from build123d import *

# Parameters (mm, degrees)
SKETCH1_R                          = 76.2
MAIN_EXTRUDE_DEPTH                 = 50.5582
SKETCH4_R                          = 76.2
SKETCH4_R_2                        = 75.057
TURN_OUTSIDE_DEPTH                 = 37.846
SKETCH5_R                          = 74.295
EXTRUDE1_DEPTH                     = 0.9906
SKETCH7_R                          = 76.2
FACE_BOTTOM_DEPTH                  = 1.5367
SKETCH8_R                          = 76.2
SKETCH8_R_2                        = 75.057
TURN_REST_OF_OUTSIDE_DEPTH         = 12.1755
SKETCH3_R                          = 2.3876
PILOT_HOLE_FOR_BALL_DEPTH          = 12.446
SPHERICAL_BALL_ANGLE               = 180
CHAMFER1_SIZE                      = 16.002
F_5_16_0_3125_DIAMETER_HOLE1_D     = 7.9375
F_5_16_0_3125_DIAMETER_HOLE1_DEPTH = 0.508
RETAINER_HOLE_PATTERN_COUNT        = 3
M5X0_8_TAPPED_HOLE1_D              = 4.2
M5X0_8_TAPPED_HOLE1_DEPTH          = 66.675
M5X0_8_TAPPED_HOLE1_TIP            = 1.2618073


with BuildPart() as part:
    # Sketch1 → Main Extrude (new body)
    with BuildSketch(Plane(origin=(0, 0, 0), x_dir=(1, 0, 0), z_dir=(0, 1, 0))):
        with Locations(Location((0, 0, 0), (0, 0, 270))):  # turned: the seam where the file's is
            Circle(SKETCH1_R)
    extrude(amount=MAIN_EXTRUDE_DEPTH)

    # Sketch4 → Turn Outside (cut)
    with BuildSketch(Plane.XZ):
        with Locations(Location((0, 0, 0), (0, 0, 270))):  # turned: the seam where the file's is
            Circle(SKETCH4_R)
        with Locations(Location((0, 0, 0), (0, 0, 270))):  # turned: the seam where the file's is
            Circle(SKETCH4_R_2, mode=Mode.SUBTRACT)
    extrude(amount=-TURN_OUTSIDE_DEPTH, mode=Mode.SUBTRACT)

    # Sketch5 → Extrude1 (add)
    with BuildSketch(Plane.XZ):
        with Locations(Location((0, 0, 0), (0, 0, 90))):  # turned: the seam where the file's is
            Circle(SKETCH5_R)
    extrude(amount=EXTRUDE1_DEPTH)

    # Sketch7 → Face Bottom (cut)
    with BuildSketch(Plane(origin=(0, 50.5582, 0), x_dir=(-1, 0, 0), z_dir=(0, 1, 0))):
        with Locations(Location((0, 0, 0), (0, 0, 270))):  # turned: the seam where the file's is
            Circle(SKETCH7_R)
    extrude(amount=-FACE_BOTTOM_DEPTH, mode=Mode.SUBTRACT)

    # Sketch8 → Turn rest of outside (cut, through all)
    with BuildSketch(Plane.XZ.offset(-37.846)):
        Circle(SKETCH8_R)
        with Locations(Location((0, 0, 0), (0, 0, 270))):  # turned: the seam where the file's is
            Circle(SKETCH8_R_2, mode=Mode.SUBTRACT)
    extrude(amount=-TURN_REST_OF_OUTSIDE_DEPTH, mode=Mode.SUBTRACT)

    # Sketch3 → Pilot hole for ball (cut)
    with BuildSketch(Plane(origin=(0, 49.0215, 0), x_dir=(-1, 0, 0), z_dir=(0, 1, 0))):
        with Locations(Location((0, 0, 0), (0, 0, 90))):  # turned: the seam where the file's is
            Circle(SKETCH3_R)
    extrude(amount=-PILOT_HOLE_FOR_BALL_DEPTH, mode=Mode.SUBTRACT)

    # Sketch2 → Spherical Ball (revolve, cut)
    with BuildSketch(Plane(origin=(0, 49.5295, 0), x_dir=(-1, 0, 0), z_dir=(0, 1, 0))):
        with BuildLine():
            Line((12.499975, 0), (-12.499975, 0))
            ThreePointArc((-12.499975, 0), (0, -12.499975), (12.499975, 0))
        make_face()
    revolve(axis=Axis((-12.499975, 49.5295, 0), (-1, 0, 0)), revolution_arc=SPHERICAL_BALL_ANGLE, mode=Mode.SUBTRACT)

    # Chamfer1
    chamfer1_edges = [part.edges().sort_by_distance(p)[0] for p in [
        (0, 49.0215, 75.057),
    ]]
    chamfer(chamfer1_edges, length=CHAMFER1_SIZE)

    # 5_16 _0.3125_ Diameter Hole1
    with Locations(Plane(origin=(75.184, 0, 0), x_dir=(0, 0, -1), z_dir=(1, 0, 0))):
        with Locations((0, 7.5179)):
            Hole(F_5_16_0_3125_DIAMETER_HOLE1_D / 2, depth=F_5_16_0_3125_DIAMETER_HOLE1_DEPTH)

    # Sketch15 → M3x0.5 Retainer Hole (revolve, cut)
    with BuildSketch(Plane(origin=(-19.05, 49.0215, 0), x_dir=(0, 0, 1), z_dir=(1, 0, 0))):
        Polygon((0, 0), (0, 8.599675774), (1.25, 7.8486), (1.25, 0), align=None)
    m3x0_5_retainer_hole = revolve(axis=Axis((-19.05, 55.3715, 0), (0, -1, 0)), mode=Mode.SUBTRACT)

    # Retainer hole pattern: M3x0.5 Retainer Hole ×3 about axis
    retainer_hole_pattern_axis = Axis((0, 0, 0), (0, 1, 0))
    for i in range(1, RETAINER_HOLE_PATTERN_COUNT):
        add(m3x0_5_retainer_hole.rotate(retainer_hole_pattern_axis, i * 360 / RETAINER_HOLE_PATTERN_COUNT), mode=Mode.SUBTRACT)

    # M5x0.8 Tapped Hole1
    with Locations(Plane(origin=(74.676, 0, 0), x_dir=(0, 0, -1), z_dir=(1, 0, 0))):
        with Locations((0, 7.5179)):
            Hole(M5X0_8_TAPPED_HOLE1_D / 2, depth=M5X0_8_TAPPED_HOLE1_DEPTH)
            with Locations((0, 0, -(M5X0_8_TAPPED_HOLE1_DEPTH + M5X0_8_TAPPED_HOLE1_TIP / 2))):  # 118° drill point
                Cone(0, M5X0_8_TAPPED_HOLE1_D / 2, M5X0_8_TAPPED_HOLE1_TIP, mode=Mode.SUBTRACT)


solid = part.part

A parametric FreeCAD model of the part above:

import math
import FreeCAD as App
import Part
import Sketcher
from FreeCAD import Vector
Q = App.Units.Quantity


def edges_at(feature, points):
    """Names of the edges that pass closest to the given points."""
    edges = feature.Shape.Edges
    near = lambda p: min(range(len(edges)), key=lambda i: edges[i].distToShape(Part.Vertex(*p))[0])
    return sorted({f"Edge{near(p) + 1}" for p in points})


def add_polygon(sketch, points):
    """Adds a closed chain of lines whose ends are joined by coincident constraints."""
    first, n = sketch.GeometryCount, len(points)
    for a, b in zip(points, points[1:] + points[:1]):
        sketch.addGeometry(Part.LineSegment(App.Vector(*a, 0), App.Vector(*b, 0)), False)
    for i in range(n):
        sketch.addConstraint(Sketcher.Constraint("Coincident", first + i, 2, first + (i + 1) % n, 1))

doc = App.newDocument("Part")
params = doc.addObject("Spreadsheet::Sheet", "Params")
for row, (alias, value) in enumerate([
    ("sketch1_diameter", "6 in"),
    ("pad1_length", "50.5582 mm"),
    ("sketch2_diameter", "6 in"),
    ("sketch2_diameter2", "5.91 in"),
    ("pocket1_length", "1.49 in"),
    ("sketch3_diameter", "5.85 in"),
    ("pad2_length", "0.039 in"),
    ("sketch4_diameter", "6 in"),
    ("pocket2_length", "0.0605 in"),
    ("sketch5_diameter", "6 in"),
    ("sketch5_diameter2", "5.91 in"),
    ("sketch6_diameter", "0.188 in"),
    ("pocket4_length", "0.49 in"),
    ("groove_angle", "180 deg"),
    ("chamfer_size", "0.63 in"),
    ("sketch8_diameter", "0.3125 in"),
    ("hole_diameter", "0.3125 in"),
    ("hole_depth", "0.02 in"),
    ("sketch9_width", "0.309 in"),
    ("groove2_angle", "360 deg"),
    ("hole2_diameter", "4.2 mm"),
    ("hole2_depth", "2.625 in"),
], start=1):
    params.set(f"A{row}", alias)
    params.set(f"B{row}", "=" + value)
    params.setAlias(f"B{row}", alias)

body = doc.addObject("PartDesign::Body", "Body")

# Sketch on XZ plane
sketch1 = body.newObject("Sketcher::SketchObject", "Sketch")
sketch1.AttachmentSupport = (doc.getObject("XZ_Plane"), [""])
sketch1.MapMode = "FlatFace"
sketch1.addGeometry(Part.Circle(Vector(0, 0, 0), Vector(0, 0, 1), 76), False)
sketch1.addConstraint(Sketcher.Constraint("Coincident", 0, 3, -1, 1))
sketch1.addConstraint(Sketcher.Constraint("Diameter", 0, Q("6 in")))
sketch1.setExpression("Constraints[1]", "Params.sketch1_diameter")
pad1 = body.newObject("PartDesign::Pad", "Pad")
pad1.Profile = sketch1
pad1.setExpression("Length", "Params.pad1_length")
pad1.Reversed = True

# Sketch on XZ plane
sketch2 = body.newObject("Sketcher::SketchObject", "Sketch001")
sketch2.AttachmentSupport = (doc.getObject("XZ_Plane"), [""])
sketch2.MapMode = "FlatFace"
sketch2.addGeometry(Part.Circle(Vector(0, 0, 0), Vector(0, 0, 1), 76), False)
sketch2.addGeometry(Part.Circle(Vector(0, 0, 0), Vector(0, 0, 1), 75), False)
sketch2.addConstraint(Sketcher.Constraint("Coincident", 0, 3, -1, 1))
sketch2.addConstraint(Sketcher.Constraint("Coincident", 1, 3, -1, 1))
sketch2.addConstraint(Sketcher.Constraint("Diameter", 0, Q("6 in")))
sketch2.addConstraint(Sketcher.Constraint("Diameter", 1, Q("5.91 in")))
sketch2.setExpression("Constraints[2]", "Params.sketch2_diameter")
sketch2.setExpression("Constraints[3]", "Params.sketch2_diameter2")
pocket1 = body.newObject("PartDesign::Pocket", "Pocket")
pocket1.Profile = sketch2
pocket1.setExpression("Length", "Params.pocket1_length")

# Sketch on XZ plane
sketch3 = body.newObject("Sketcher::SketchObject", "Sketch002")
sketch3.AttachmentSupport = (doc.getObject("XZ_Plane"), [""])
sketch3.MapMode = "FlatFace"
sketch3.addGeometry(Part.Circle(Vector(0, 0, 0), Vector(0, 0, 1), 74), False)
sketch3.addConstraint(Sketcher.Constraint("Coincident", 0, 3, -1, 1))
sketch3.addConstraint(Sketcher.Constraint("Diameter", 0, Q("5.85 in")))
sketch3.setExpression("Constraints[1]", "Params.sketch3_diameter")
pad2 = body.newObject("PartDesign::Pad", "Pad001")
pad2.Profile = sketch3
pad2.setExpression("Length", "Params.pad2_length")

# Sketch on XZ plane
sketch4 = body.newObject("Sketcher::SketchObject", "Sketch003")
sketch4.AttachmentSupport = (doc.getObject("XZ_Plane"), [""])
sketch4.MapMode = "FlatFace"
sketch4.AttachmentOffset = App.Placement(Vector(0, 0, -50.5582), App.Rotation())
sketch4.addGeometry(Part.Circle(Vector(0, 0, 0), Vector(0, 0, 1), 76), False)
sketch4.addConstraint(Sketcher.Constraint("Coincident", 0, 3, -1, 1))
sketch4.addConstraint(Sketcher.Constraint("Diameter", 0, Q("6 in")))
sketch4.setExpression("Constraints[1]", "Params.sketch4_diameter")
pocket2 = body.newObject("PartDesign::Pocket", "Pocket001")
pocket2.Profile = sketch4
pocket2.setExpression("Length", "Params.pocket2_length")
pocket2.Reversed = True

# Sketch on XZ plane
sketch5 = body.newObject("Sketcher::SketchObject", "Sketch004")
sketch5.AttachmentSupport = (doc.getObject("XZ_Plane"), [""])
sketch5.MapMode = "FlatFace"
sketch5.AttachmentOffset = App.Placement(Vector(0, 0, -1.49 * 25.4), App.Rotation())
sketch5.addGeometry(Part.Circle(Vector(0, 0, 0), Vector(0, 0, 1), 76), False)
sketch5.addGeometry(Part.Circle(Vector(0, 0, 0), Vector(0, 0, 1), 75), False)
sketch5.addConstraint(Sketcher.Constraint("Coincident", 0, 3, -1, 1))
sketch5.addConstraint(Sketcher.Constraint("Coincident", 1, 3, -1, 1))
sketch5.addConstraint(Sketcher.Constraint("Diameter", 0, Q("6 in")))
sketch5.addConstraint(Sketcher.Constraint("Diameter", 1, Q("5.91 in")))
sketch5.setExpression("Constraints[2]", "Params.sketch5_diameter")
sketch5.setExpression("Constraints[3]", "Params.sketch5_diameter2")
pocket3 = body.newObject("PartDesign::Pocket", "Pocket002")
pocket3.Profile = sketch5
pocket3.Type = "ThroughAll"

# Sketch on XZ plane
sketch6 = body.newObject("Sketcher::SketchObject", "Sketch005")
sketch6.AttachmentSupport = (doc.getObject("XZ_Plane"), [""])
sketch6.MapMode = "FlatFace"
sketch6.AttachmentOffset = App.Placement(Vector(0, 0, -49.0215), App.Rotation())
sketch6.addGeometry(Part.Circle(Vector(0, 0, 0), Vector(0, 0, 1), 2.4), False)
sketch6.addConstraint(Sketcher.Constraint("Coincident", 0, 3, -1, 1))
sketch6.addConstraint(Sketcher.Constraint("Diameter", 0, Q("0.188 in")))
sketch6.setExpression("Constraints[1]", "Params.sketch6_diameter")
pocket4 = body.newObject("PartDesign::Pocket", "Pocket003")
pocket4.Profile = sketch6
pocket4.setExpression("Length", "Params.pocket4_length")
pocket4.Reversed = True

# Sketch on XZ plane
sketch7 = body.newObject("Sketcher::SketchObject", "Sketch006")
sketch7.AttachmentSupport = (doc.getObject("XZ_Plane"), [""])
sketch7.MapMode = "FlatFace"
sketch7.AttachmentOffset = App.Placement(Vector(0, 0, -49.5295), App.Rotation())
sketch7.addGeometry(Part.LineSegment(Vector(-12, 0, 0), Vector(12, 0, 0)), False)
sketch7.addGeometry(Part.ArcOfCircle(Part.Circle(Vector(0, 0, 0), Vector(0, 0, 1), 12), math.radians(180), math.radians(360)), False)
sketch7.addConstraint(Sketcher.Constraint("Coincident", 0, 1, 1, 1))
sketch7.addConstraint(Sketcher.Constraint("Coincident", 1, 2, 0, 2))
sketch7.addConstraint(Sketcher.Constraint("Horizontal", 0))
sketch7.addConstraint(Sketcher.Constraint("Coincident", 1, 3, -1, 1))
sketch7.addConstraint(Sketcher.Constraint("PointOnObject", 0, 1, -1))
sketch7.addConstraint(Sketcher.Constraint("Radius", 1, Q("12.499975 mm")))
groove = body.newObject("PartDesign::Groove", "Groove")
groove.Profile = sketch7
groove.ReferenceAxis = (sketch7, ["H_Axis"])
groove.setExpression("Angle", "Params.groove_angle")
groove.Reversed = True
doc.recompute()

chamfer = body.newObject("PartDesign::Chamfer", "Chamfer")
chamfer.Base = (groove, edges_at(groove, [(0, 49.022, 75.057)]))
chamfer.setExpression("Size", "Params.chamfer_size")

# Sketch on YZ plane
sketch8 = body.newObject("Sketcher::SketchObject", "Sketch007")
sketch8.AttachmentSupport = (doc.getObject("YZ_Plane"), [""])
sketch8.MapMode = "FlatFace"
sketch8.AttachmentOffset = App.Placement(Vector(0, 0, 2.96 * 25.4), App.Rotation())
sketch8.addGeometry(Part.Circle(Vector(7.5, 0, 0), Vector(0, 0, 1), 4), False)
sketch8.addConstraint(Sketcher.Constraint("PointOnObject", 0, 3, -1))
sketch8.addConstraint(Sketcher.Constraint("Diameter", 0, Q("0.3125 in")))
sketch8.addConstraint(Sketcher.Constraint("DistanceX", -1, 1, 0, 3, Q("7.5179 mm")))
sketch8.setExpression("Constraints[1]", "Params.sketch8_diameter")
doc.recompute()
hole = body.newObject("PartDesign::Hole", "Hole")
hole.Profile = sketch8
hole.ThreadType = "None"
hole.setExpression("Diameter", "Params.hole_diameter")
hole.DepthType = "Dimension"
hole.setExpression("Depth", "Params.hole_depth")
hole.DrillPoint = "Flat"

# Sketch on YZ plane
sketch9 = body.newObject("Sketcher::SketchObject", "Sketch008")
sketch9.AttachmentSupport = (doc.getObject("YZ_Plane"), [""])
sketch9.MapMode = "FlatFace"
sketch9.AttachmentOffset = App.Placement(Vector(0, 0, -0.75 * 25.4), App.Rotation())
add_polygon(sketch9, [(40.4, 0), (49, 0), (49, 1.2), (41.2, 1.2)])  # lines 0-3
sketch9.addConstraint(Sketcher.Constraint("Horizontal", 0))
sketch9.addConstraint(Sketcher.Constraint("Vertical", 1))
sketch9.addConstraint(Sketcher.Constraint("Horizontal", 2))
sketch9.addConstraint(Sketcher.Constraint("PointOnObject", 0, 2, -1))
sketch9.addConstraint(Sketcher.Constraint("Angle", 3, Q("-121 deg")))
sketch9.addConstraint(Sketcher.Constraint("DistanceX", 2, 2, 2, 1, Q("0.309 in")))
sketch9.addConstraint(Sketcher.Constraint("DistanceY", 1, 1, 1, 2, Q("1.25 mm")))
sketch9.addConstraint(Sketcher.Constraint("DistanceX", -1, 1, 0, 2, Q("49.0215 mm")))
sketch9.setExpression("Constraints[9]", "Params.sketch9_width")
groove2 = body.newObject("PartDesign::Groove", "Groove001")
groove2.Profile = sketch9
groove2.ReferenceAxis = (sketch9, ["H_Axis"])
groove2.setExpression("Angle", "Params.groove2_angle")
doc.recompute()

polarpattern = body.newObject("PartDesign::PolarPattern", "PolarPattern")
polarpattern.Originals = [groove2]
polarpattern.Axis = (doc.getObject("Y_Axis"), [""])
polarpattern.Angle = 360
polarpattern.Occurrences = 3
body.Tip = polarpattern

# Sketch on YZ plane
sketch10 = body.newObject("Sketcher::SketchObject", "Sketch009")
sketch10.AttachmentSupport = (doc.getObject("YZ_Plane"), [""])
sketch10.MapMode = "FlatFace"
sketch10.AttachmentOffset = App.Placement(Vector(0, 0, 2.94 * 25.4), App.Rotation())
sketch10.addGeometry(Part.Circle(Vector(7.5, 0, 0), Vector(0, 0, 1), 2.1), False)
sketch10.addConstraint(Sketcher.Constraint("PointOnObject", 0, 3, -1))
sketch10.addConstraint(Sketcher.Constraint("Diameter", 0, Q("4.2 mm")))
sketch10.addConstraint(Sketcher.Constraint("DistanceX", -1, 1, 0, 3, Q("7.5179 mm")))
doc.recompute()
hole2 = body.newObject("PartDesign::Hole", "Hole001")
hole2.Profile = sketch10
hole2.ThreadType = "None"
hole2.setExpression("Diameter", "Params.hole2_diameter")
hole2.DepthType = "Dimension"
hole2.setExpression("Depth", "Params.hole2_depth")
hole2.DrillPoint = "Angled"
hole2.DrillPointAngle = 118

doc.recompute()
